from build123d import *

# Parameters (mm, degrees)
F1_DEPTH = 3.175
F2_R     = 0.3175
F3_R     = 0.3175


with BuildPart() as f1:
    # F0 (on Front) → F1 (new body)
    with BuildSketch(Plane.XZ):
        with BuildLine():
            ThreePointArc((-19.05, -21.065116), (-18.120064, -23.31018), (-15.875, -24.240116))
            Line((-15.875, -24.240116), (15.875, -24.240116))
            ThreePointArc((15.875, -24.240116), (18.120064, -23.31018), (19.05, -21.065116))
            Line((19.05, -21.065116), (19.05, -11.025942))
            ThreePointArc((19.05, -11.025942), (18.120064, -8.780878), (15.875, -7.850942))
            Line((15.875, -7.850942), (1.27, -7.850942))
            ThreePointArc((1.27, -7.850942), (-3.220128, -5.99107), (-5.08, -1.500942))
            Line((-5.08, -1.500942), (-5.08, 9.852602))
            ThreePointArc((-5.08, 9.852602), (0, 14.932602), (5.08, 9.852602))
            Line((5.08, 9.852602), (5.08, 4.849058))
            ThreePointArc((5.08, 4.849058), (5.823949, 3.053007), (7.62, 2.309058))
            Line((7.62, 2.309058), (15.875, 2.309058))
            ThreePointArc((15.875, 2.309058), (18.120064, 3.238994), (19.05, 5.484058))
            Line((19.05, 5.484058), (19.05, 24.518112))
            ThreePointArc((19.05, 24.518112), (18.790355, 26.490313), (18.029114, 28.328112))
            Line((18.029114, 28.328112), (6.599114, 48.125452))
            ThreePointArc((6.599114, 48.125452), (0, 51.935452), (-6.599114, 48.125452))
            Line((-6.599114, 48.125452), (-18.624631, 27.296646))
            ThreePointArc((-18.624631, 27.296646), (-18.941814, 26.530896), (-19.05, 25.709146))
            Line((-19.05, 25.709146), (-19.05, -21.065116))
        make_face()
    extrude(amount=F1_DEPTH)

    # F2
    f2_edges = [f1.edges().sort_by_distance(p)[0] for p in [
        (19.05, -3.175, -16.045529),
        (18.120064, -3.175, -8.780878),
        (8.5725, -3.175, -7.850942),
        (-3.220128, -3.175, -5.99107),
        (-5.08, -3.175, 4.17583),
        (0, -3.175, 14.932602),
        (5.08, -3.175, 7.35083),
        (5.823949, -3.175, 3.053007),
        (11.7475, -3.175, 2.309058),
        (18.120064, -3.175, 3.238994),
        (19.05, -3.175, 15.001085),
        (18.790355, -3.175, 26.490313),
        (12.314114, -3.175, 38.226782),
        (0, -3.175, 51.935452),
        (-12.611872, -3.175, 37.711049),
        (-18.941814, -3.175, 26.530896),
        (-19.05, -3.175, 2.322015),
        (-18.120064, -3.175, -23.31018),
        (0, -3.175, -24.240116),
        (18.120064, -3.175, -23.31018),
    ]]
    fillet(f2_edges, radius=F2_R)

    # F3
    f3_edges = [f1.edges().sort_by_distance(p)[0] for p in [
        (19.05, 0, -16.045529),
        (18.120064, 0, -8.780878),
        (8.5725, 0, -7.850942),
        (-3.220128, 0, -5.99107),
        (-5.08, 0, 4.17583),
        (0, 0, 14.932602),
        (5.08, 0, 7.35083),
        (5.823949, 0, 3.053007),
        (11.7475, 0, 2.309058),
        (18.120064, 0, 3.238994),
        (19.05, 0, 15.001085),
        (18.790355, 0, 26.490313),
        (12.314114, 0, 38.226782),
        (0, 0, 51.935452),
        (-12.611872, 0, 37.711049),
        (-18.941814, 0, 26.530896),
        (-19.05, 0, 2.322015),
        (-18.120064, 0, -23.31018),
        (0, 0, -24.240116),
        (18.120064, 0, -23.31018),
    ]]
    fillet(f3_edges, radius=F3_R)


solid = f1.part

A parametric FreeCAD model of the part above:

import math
import FreeCAD as App
import Part
import Sketcher

V = App.Vector
Q = App.Units.Quantity


def edges_at(feature, points):
    """Names of the edges that pass closest to the given points."""
    edges = feature.Shape.Edges
    near = lambda p: min(range(len(edges)), key=lambda i: edges[i].distToShape(Part.Vertex(*p))[0])
    return sorted({f"Edge{near(p) + 1}" for p in points})

doc = App.newDocument("Part")
params = doc.addObject("Spreadsheet::Sheet", "Params")
for row, (alias, value) in enumerate([
    ("sketch1_radius", "0.2 in"),
    ("sketch1_radius2", "0.1 in"),
    ("sketch1_radius3", "0.3 in"),
    ("sketch1_radius4", "0.25 in"),
    ("sketch1_radius5", "0.125 in"),
    ("pad1_length", "0.125 in"),
    ("fillet_radius", "0.0125 in"),
    ("fillet2_radius", "0.0125 in"),
], start=1):
    params.set(f"A{row}", alias)
    params.set(f"B{row}", "=" + value)
    params.setAlias(f"B{row}", alias)

body = doc.addObject("PartDesign::Body", "Body")

sketch1 = body.newObject("Sketcher::SketchObject", "Sketch")
sketch1.AttachmentSupport = (doc.getObject("XZ_Plane"), [""])
sketch1.MapMode = "FlatFace"
sketch1.addGeometry(Part.ArcOfCircle(Part.Circle(V(-15.875, -21.065116, 0), V(0, 0, 1), 3.175), math.radians(-179.999998), math.radians(-90.000002)), False)
sketch1.addGeometry(Part.LineSegment(V(-15.875, -24.240116, 0), V(15.875, -24.240116, 0)), False)
sketch1.addGeometry(Part.ArcOfCircle(Part.Circle(V(15.875, -21.065116, 0), V(0, 0, 1), 3.175), math.radians(-89.999998), math.radians(-0.000002)), False)
sketch1.addGeometry(Part.LineSegment(V(19.05, -21.065116, 0), V(19.05, -11.025942, 0)), False)
sketch1.addGeometry(Part.ArcOfCircle(Part.Circle(V(15.875, -11.025942, 0), V(0, 0, 1), 3.175), math.radians(0.000002), math.radians(89.999998)), False)
sketch1.addGeometry(Part.LineSegment(V(15.875, -7.850942, 0), V(1.27, -7.850942, 0)), False)
sketch1.addGeometry(Part.ArcOfCircle(Part.Circle(V(1.27, -1.500942, 0), V(0, 0, 1), 6.35), math.radians(-179.999998), math.radians(-90.000002)), False)
sketch1.addGeometry(Part.LineSegment(V(-5.08, -1.500942, 0), V(-5.08, 9.852602, 0)), False)
sketch1.addGeometry(Part.ArcOfCircle(Part.Circle(V(0, 9.852602, 0), V(0, 0, 1), 5.08), math.radians(0), math.radians(180)), False)
sketch1.addGeometry(Part.LineSegment(V(5.08, 9.852602, 0), V(5.08, 4.849058, 0)), False)
sketch1.addGeometry(Part.ArcOfCircle(Part.Circle(V(7.620001, 4.849059, 0), V(0, 0, 1), 2.540001), math.radians(-179.999983), math.radians(-90.000017)), False)
sketch1.addGeometry(Part.LineSegment(V(7.62, 2.309058, 0), V(15.875, 2.309058, 0)), False)
sketch1.addGeometry(Part.ArcOfCircle(Part.Circle(V(15.875, 5.484058, 0), V(0, 0, 1), 3.175), math.radians(-89.999998), math.radians(-0.000002)), False)
sketch1.addGeometry(Part.LineSegment(V(19.05, 5.484058, 0), V(19.05, 24.518112, 0)), False)
sketch1.addGeometry(Part.ArcOfCircle(Part.Circle(V(11.429999, 24.518113, 0), V(0, 0, 1), 7.620001), math.radians(-0.000004), math.radians(29.999992)), False)
sketch1.addGeometry(Part.LineSegment(V(18.029114, 28.328112, 0), V(6.599114, 48.125452, 0)), False)
sketch1.addGeometry(Part.ArcOfCircle(Part.Circle(V(0, 44.315451, 0), V(0, 0, 1), 7.620001), math.radians(30.000003), math.radians(149.999997)), False)
sketch1.addGeometry(Part.LineSegment(V(-6.599114, 48.125452, 0), V(-18.624631, 27.296646, 0)), False)
sketch1.addGeometry(Part.ArcOfCircle(Part.Circle(V(-15.874979, 25.709141, 0), V(0, 0, 1), 3.175021), math.radians(150.000116), math.radians(179.999907)), False)
sketch1.addGeometry(Part.LineSegment(V(-19.05, 25.709146, 0), V(-19.05, -21.065116, 0)), False)
sketch1.addConstraint(Sketcher.Constraint("Tangent", 0, 2, 1, 1))
sketch1.addConstraint(Sketcher.Constraint("Tangent", 1, 2, 2, 1))
sketch1.addConstraint(Sketcher.Constraint("Tangent", 2, 2, 3, 1))
sketch1.addConstraint(Sketcher.Constraint("Tangent", 3, 2, 4, 1))
sketch1.addConstraint(Sketcher.Constraint("Tangent", 4, 2, 5, 1))
sketch1.addConstraint(Sketcher.Constraint("Tangent", 5, 2, 6, 2))
sketch1.addConstraint(Sketcher.Constraint("Tangent", 6, 1, 7, 1))
sketch1.addConstraint(Sketcher.Constraint("Tangent", 7, 2, 8, 2))
sketch1.addConstraint(Sketcher.Constraint("Tangent", 8, 1, 9, 1))
sketch1.addConstraint(Sketcher.Constraint("Tangent", 9, 2, 10, 1))
sketch1.addConstraint(Sketcher.Constraint("Tangent", 10, 2, 11, 1))
sketch1.addConstraint(Sketcher.Constraint("Tangent", 11, 2, 12, 1))
sketch1.addConstraint(Sketcher.Constraint("Tangent", 12, 2, 13, 1))
sketch1.addConstraint(Sketcher.Constraint("Tangent", 13, 2, 14, 1))
sketch1.addConstraint(Sketcher.Constraint("Tangent", 14, 2, 15, 1))
sketch1.addConstraint(Sketcher.Constraint("Tangent", 15, 2, 16, 1))
sketch1.addConstraint(Sketcher.Constraint("Tangent", 16, 2, 17, 1))
sketch1.addConstraint(Sketcher.Constraint("Coincident", 17, 2, 18, 1))
sketch1.addConstraint(Sketcher.Constraint("Tangent", 18, 2, 19, 1))
sketch1.addConstraint(Sketcher.Constraint("Tangent", 19, 2, 0, 1))
sketch1.addConstraint(Sketcher.Constraint("Horizontal", 1))
sketch1.addConstraint(Sketcher.Constraint("Vertical", 3))
sketch1.addConstraint(Sketcher.Constraint("Horizontal", 5))
sketch1.addConstraint(Sketcher.Constraint("Vertical", 7))
sketch1.addConstraint(Sketcher.Constraint("Vertical", 9))
sketch1.addConstraint(Sketcher.Constraint("Horizontal", 11))
sketch1.addConstraint(Sketcher.Constraint("Vertical", 13))
sketch1.addConstraint(Sketcher.Constraint("Vertical", 19))
sketch1.addConstraint(Sketcher.Constraint("Equal", 0, 2))
sketch1.addConstraint(Sketcher.Constraint("Equal", 2, 4))
sketch1.addConstraint(Sketcher.Constraint("Equal", 4, 12))
sketch1.addConstraint(Sketcher.Constraint("Equal", 14, 16))
sketch1.addConstraint(Sketcher.Constraint("Symmetric", 15, 2, 16, 2, -2))
sketch1.addConstraint(Sketcher.Constraint("PointOnObject", 8, 3, -2))
sketch1.addConstraint(Sketcher.Constraint("Vertical", 4, 3, 12, 3))
sketch1.addConstraint(Sketcher.Constraint("Radius", 8, Q("0.2 in")))
sketch1.addConstraint(Sketcher.Constraint("Radius", 10, Q("0.1 in")))
sketch1.addConstraint(Sketcher.Constraint("Radius", 14, Q("0.3 in")))
sketch1.addConstraint(Sketcher.Constraint("Radius", 6, Q("0.25 in")))
sketch1.addConstraint(Sketcher.Constraint("Angle", 15, Q("120.000001 deg")))
sketch1.addConstraint(Sketcher.Constraint("Radius", 0, Q("0.125 in")))
sketch1.addConstraint(Sketcher.Constraint("Distance", 15, Q("0.9 in")))
sketch1.addConstraint(Sketcher.Constraint("DistanceX", 1, 1, 1, 2, Q("1.25 in")))
sketch1.addConstraint(Sketcher.Constraint("DistanceY", 5, 2, 10, 3, Q("0.5 in")))
sketch1.addConstraint(Sketcher.Constraint("Radius", 18, Q("3.175021 mm")))
sketch1.addConstraint(Sketcher.Constraint("DistanceY", 18, 2, 17, 2, Q("0.0625 in")))
sketch1.addConstraint(Sketcher.Constraint("DistanceY", -1, 1, 8, 3, Q("9.852602 mm")))
sketch1.addConstraint(Sketcher.Constraint("DistanceY", 3, 1, 3, 2, Q("10.039174 mm")))
sketch1.addConstraint(Sketcher.Constraint("DistanceY", 7, 1, 7, 2, Q("11.353544 mm")))
sketch1.addConstraint(Sketcher.Constraint("DistanceY", 13, 1, 13, 2, Q("19.034054 mm")))
sketch1.setExpression("Constraints[35]", "Params.sketch1_radius")
sketch1.setExpression("Constraints[36]", "Params.sketch1_radius2")
sketch1.setExpression("Constraints[37]", "Params.sketch1_radius3")
sketch1.setExpression("Constraints[38]", "Params.sketch1_radius4")
sketch1.setExpression("Constraints[40]", "Params.sketch1_radius5")
pad1 = body.newObject("PartDesign::Pad", "Pad")
pad1.Profile = sketch1
pad1.setExpression("Length", "Params.pad1_length")
doc.recompute()

fillet = body.newObject("PartDesign::Fillet", "Fillet")
fillet.Base = (pad1, edges_at(pad1, [
    (19.05, -3.175, -16.046),
    (18.12, -3.175, -8.781),
    (8.572, -3.175, -7.851),
    (-3.22, -3.175, -5.991),
    (-5.08, -3.175, 4.176),
    (0, -3.175, 14.933),
    (5.08, -3.175, 7.351),
    (5.824, -3.175, 3.053),
    (11.748, -3.175, 2.309),
    (18.12, -3.175, 3.239),
    (19.05, -3.175, 15.001),
    (18.79, -3.175, 26.49),
    (12.314, -3.175, 38.227),
    (0, -3.175, 51.935),
    (-12.612, -3.175, 37.711),
    (-18.942, -3.175, 26.531),
    (-19.05, -3.175, 2.322),
    (-18.12, -3.175, -23.31),
    (0, -3.175, -24.24),
    (18.12, -3.175, -23.31),
]))
fillet.setExpression("Radius", "Params.fillet_radius")
doc.recompute()

fillet2 = body.newObject("PartDesign::Fillet", "Fillet001")
fillet2.Base = (fillet, edges_at(fillet, [
    (19.05, 0, -16.046),
    (18.12, 0, -8.781),
    (8.572, 0, -7.851),
    (-3.22, 0, -5.991),
    (-5.08, 0, 4.176),
    (0, 0, 14.933),
    (5.08, 0, 7.351),
    (5.824, 0, 3.053),
    (11.748, 0, 2.309),
    (18.12, 0, 3.239),
    (19.05, 0, 15.001),
    (18.79, 0, 26.49),
    (12.314, 0, 38.227),
    (0, 0, 51.935),
    (-12.612, 0, 37.711),
    (-18.942, 0, 26.531),
    (-19.05, 0, 2.322),
    (-18.12, 0, -23.31),
    (0, 0, -24.24),
    (18.12, 0, -23.31),
]))
fillet2.setExpression("Radius", "Params.fillet2_radius")

doc.recompute()
